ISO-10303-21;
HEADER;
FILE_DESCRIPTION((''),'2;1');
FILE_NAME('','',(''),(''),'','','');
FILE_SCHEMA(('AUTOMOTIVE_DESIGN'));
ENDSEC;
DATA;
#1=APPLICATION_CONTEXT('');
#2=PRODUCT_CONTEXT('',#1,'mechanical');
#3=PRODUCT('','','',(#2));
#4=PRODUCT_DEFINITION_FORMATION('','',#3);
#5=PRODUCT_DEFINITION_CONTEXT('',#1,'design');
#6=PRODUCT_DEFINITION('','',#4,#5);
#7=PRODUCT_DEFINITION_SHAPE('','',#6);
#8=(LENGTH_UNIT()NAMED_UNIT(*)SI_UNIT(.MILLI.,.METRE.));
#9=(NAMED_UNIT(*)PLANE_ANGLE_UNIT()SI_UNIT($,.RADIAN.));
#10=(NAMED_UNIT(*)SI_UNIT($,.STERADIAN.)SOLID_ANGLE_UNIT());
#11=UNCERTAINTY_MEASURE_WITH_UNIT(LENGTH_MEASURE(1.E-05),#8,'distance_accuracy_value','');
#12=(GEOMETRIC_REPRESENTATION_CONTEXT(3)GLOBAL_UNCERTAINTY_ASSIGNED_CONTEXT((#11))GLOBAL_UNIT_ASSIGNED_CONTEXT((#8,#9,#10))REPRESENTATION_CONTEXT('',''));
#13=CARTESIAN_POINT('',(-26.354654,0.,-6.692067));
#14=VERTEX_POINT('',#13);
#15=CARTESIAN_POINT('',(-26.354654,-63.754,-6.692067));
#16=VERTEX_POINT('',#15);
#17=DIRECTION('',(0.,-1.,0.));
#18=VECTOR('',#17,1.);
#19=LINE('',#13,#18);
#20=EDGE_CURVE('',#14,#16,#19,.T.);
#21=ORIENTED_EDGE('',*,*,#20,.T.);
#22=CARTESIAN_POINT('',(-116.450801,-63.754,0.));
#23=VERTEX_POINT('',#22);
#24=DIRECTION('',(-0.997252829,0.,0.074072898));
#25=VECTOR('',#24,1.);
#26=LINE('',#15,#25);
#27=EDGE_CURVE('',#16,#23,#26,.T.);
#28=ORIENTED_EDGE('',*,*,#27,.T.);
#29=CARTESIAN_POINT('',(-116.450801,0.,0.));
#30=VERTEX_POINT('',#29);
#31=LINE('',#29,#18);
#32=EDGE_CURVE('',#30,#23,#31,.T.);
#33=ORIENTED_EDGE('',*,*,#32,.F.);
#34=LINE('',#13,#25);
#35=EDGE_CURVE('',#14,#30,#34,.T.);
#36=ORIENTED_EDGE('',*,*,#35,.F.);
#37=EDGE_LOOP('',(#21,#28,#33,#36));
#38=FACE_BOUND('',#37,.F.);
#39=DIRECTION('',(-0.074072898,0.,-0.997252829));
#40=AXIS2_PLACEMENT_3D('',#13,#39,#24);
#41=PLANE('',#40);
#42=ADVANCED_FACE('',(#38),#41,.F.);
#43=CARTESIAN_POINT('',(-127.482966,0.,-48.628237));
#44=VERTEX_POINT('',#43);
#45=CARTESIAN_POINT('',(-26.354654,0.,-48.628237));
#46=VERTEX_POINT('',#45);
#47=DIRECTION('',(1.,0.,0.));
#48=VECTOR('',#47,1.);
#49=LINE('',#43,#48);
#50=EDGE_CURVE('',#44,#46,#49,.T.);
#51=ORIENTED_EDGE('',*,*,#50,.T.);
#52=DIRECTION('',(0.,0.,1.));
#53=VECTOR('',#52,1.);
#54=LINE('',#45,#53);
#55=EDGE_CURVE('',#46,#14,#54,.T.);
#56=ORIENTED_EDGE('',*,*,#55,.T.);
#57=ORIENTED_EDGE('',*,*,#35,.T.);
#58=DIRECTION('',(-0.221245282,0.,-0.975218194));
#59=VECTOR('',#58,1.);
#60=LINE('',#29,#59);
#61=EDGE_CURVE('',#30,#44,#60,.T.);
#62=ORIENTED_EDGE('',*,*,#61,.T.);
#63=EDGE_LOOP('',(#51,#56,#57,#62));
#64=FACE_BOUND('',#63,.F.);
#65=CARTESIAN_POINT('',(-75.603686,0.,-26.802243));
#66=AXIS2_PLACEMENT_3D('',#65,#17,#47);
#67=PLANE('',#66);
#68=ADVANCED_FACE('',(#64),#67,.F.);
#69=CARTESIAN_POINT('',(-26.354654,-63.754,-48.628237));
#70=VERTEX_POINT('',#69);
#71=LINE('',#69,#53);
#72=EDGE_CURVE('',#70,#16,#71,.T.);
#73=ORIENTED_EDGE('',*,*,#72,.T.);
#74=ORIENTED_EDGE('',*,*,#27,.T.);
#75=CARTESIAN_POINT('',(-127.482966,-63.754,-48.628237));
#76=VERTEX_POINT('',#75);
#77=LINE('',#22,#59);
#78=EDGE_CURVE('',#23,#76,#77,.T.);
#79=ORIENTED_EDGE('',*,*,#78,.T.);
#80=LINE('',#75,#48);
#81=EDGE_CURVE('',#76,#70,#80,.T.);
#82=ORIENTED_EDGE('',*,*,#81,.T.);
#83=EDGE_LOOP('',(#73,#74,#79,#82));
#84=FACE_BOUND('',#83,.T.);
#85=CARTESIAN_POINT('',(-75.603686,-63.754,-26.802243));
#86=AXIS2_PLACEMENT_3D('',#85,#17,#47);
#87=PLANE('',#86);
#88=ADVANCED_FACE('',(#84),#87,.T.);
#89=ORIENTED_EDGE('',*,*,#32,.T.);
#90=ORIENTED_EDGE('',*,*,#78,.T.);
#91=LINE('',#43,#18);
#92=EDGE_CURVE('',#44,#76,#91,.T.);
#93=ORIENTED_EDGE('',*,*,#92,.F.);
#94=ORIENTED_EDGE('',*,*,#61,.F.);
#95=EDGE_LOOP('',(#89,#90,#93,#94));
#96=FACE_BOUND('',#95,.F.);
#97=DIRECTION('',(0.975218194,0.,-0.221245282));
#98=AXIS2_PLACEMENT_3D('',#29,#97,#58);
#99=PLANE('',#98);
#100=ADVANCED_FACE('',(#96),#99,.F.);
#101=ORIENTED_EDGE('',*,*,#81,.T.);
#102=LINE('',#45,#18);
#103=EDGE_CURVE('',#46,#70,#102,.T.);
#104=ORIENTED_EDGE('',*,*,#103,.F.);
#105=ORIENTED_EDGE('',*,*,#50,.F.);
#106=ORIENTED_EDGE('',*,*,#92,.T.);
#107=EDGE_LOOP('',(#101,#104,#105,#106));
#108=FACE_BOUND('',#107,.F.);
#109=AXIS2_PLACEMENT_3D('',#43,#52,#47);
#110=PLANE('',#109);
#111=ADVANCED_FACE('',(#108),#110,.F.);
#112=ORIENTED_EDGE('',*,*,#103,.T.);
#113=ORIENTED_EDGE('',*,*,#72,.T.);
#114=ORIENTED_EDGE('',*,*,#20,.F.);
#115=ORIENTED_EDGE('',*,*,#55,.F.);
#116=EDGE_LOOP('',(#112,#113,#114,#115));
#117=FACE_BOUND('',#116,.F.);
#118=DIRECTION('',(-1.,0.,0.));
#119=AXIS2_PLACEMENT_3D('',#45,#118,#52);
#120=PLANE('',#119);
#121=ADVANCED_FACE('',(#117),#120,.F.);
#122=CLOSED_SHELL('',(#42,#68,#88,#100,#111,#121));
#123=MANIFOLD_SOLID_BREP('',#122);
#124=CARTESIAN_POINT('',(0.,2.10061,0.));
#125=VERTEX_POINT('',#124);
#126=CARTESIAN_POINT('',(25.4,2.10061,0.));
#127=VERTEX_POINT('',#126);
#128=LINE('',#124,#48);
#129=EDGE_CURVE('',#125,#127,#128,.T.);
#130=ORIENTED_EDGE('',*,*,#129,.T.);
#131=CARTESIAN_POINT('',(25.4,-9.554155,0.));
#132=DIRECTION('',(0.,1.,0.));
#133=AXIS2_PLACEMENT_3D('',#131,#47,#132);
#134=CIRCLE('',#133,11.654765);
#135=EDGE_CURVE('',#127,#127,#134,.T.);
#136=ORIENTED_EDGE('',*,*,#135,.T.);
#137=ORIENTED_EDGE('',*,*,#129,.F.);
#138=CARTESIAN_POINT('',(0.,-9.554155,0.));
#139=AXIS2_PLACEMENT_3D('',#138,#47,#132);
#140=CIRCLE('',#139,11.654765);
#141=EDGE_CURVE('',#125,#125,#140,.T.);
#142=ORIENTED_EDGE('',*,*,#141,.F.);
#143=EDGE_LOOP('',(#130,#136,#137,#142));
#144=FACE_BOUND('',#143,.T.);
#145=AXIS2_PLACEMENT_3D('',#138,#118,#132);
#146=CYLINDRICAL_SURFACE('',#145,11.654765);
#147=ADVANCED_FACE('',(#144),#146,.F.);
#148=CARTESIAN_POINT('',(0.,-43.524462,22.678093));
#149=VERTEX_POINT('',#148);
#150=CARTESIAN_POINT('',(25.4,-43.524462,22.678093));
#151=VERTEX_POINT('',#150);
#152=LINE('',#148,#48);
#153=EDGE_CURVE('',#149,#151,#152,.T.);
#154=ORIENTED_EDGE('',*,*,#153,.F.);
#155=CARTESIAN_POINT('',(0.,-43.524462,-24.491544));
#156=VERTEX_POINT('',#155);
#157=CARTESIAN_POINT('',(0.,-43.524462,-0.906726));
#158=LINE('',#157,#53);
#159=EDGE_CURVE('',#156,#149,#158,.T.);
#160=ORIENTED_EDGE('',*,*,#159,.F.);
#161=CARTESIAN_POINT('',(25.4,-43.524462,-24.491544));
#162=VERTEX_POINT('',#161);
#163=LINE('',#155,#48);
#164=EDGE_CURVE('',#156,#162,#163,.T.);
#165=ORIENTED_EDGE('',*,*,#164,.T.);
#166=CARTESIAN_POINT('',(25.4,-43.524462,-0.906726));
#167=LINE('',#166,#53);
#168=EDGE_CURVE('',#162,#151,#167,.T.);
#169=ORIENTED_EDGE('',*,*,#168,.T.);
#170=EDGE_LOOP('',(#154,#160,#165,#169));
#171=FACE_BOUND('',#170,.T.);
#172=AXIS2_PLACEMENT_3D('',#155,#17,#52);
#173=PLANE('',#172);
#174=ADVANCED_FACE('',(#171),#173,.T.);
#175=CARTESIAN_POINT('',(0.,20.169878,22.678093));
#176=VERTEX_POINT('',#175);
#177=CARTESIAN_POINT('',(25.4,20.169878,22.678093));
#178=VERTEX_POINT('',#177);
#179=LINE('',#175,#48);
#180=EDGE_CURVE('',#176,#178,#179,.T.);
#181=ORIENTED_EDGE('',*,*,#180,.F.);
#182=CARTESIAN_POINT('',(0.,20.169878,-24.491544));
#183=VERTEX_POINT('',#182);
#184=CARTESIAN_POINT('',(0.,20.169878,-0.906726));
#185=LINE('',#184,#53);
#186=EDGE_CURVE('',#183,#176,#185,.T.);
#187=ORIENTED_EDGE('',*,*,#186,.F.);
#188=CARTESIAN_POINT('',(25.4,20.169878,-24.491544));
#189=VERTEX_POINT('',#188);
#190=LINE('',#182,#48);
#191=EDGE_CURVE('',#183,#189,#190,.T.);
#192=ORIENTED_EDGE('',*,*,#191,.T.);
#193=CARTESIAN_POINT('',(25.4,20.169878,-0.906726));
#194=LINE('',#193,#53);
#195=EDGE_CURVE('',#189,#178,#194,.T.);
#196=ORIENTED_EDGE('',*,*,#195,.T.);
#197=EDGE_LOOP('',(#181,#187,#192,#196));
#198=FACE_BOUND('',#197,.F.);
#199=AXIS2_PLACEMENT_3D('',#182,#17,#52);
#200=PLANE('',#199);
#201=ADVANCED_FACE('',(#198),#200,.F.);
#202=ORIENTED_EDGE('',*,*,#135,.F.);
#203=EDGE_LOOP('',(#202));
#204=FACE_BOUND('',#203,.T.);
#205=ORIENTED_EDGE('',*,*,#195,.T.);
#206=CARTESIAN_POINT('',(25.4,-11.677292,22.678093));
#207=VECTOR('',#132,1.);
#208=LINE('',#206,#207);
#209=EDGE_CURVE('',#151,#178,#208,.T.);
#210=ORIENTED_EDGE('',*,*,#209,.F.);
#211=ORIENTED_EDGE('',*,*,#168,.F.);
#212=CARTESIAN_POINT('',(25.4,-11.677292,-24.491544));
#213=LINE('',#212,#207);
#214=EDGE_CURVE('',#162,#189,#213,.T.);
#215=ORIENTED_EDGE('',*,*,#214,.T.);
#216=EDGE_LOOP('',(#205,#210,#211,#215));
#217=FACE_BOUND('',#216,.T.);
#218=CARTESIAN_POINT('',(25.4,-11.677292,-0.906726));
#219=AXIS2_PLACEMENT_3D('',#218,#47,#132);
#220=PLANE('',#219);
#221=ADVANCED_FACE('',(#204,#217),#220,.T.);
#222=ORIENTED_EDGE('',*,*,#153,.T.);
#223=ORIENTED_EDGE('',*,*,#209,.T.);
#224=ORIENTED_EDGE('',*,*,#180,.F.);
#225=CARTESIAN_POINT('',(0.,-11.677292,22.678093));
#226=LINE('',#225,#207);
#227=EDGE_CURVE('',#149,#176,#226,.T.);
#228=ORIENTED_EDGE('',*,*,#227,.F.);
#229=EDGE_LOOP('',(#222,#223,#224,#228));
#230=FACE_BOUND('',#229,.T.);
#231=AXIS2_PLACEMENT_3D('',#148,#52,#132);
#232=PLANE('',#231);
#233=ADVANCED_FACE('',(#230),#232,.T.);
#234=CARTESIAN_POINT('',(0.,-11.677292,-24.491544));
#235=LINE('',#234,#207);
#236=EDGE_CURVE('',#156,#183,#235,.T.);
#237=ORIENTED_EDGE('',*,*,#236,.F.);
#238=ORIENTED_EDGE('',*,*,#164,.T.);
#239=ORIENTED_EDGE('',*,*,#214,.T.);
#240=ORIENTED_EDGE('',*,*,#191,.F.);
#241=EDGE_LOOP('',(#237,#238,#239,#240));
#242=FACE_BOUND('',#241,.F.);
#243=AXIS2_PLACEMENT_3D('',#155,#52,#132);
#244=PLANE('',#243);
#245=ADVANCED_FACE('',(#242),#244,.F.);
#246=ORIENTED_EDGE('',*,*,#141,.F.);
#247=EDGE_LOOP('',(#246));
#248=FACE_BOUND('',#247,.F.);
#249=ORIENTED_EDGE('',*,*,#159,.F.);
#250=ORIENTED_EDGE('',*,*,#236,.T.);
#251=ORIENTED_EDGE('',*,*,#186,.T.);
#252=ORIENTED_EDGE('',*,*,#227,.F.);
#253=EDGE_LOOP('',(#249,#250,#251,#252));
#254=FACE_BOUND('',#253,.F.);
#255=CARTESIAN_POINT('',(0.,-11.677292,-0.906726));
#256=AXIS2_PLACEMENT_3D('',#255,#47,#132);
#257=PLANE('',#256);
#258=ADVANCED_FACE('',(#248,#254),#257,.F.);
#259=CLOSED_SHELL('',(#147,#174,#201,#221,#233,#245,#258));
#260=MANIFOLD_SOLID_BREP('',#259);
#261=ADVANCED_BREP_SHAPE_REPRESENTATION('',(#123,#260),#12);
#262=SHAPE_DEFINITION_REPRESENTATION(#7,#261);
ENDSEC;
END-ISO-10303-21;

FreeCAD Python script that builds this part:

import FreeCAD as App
import Part
import Sketcher
from FreeCAD import Vector
Q = App.Units.Quantity

doc = App.newDocument("Part")
body = doc.addObject("PartDesign::Body", "Body")

# Sketch on YZ plane
sketch1 = doc.addObject("Sketcher::SketchObject", "Sketch")
body.addObject(sketch1)
sketch1.AttachmentSupport = (doc.YZ_Plane, [""])
sketch1.MapMode = "FlatFace"
sketch1.addGeometry([
    Part.LineSegment(Vector(-44, 23, 0), Vector(-44, -24, 0)),  # 0
    Part.LineSegment(Vector(-44, -24, 0), Vector(20, -24, 0)),  # 1
    Part.LineSegment(Vector(20, -24, 0), Vector(20, 23, 0)),  # 2
    Part.LineSegment(Vector(20, 23, 0), Vector(-44, 23, 0)),  # 3
    Part.Circle(Vector(-10, 0, 0), Vector(0, 0, 1), 12),  # 4
], False)
sketch1.addConstraint([
    Sketcher.Constraint("Coincident", 0, 2, 1, 1),
    Sketcher.Constraint("Coincident", 1, 2, 2, 1),
    Sketcher.Constraint("Coincident", 2, 2, 3, 1),
    Sketcher.Constraint("Coincident", 3, 2, 0, 1),
    Sketcher.Constraint("Vertical", 0),
    Sketcher.Constraint("Horizontal", 1),
    Sketcher.Constraint("Vertical", 2),
    Sketcher.Constraint("Horizontal", 3),
    Sketcher.Constraint("PointOnObject", 4, 3, -1),
    Sketcher.Constraint("Diameter", 4, 23.30953),
    Sketcher.Constraint("DistanceX", 1, 1, 1, 2, 63.694341),
    Sketcher.Constraint("DistanceY", 0, 2, 0, 1, 47.169637),
    Sketcher.Constraint("DistanceX", -1, 1, 1, 2, 20.169878),
    Sketcher.Constraint("DistanceX", 4, 3, -1, 1, 9.554155),
    Sketcher.Constraint("DistanceY", 0, 2, -1, 1, 24.491544),
])
pad1 = doc.addObject("PartDesign::Pad", "Pad")
body.addObject(pad1)
pad1.Profile = sketch1
pad1.Length = Q("1 in")
body2 = doc.addObject("PartDesign::Body", "Body001")

# Sketch on XZ plane
sketch2 = doc.addObject("Sketcher::SketchObject", "Sketch001")
body2.addObject(sketch2)
sketch2.AttachmentSupport = (doc.getObject("XZ_Plane001"), [""])
sketch2.MapMode = "FlatFace"
sketch2.addGeometry([
    Part.LineSegment(Vector(-26, -7, 0), Vector(-116, 0, 0)),
    Part.LineSegment(Vector(-116, 0, 0), Vector(-127, -49, 0)),
    Part.LineSegment(Vector(-127, -49, 0), Vector(-26, -49, 0)),
    Part.LineSegment(Vector(-26, -49, 0), Vector(-26, -7, 0)),
], False)
sketch2.addConstraint([
    Sketcher.Constraint("Coincident", 0, 2, 1, 1),
    Sketcher.Constraint("Coincident", 1, 2, 2, 1),
    Sketcher.Constraint("Coincident", 2, 2, 3, 1),
    Sketcher.Constraint("Coincident", 3, 2, 0, 1),
    Sketcher.Constraint("Horizontal", 2),
    Sketcher.Constraint("Vertical", 3),
    Sketcher.Constraint("PointOnObject", 0, 2, -1),
    Sketcher.Constraint("DistanceY", 3, 1, 3, 2, 41.93617),
    Sketcher.Constraint("DistanceX", 0, 2, -1, 1, 116.450801),
    Sketcher.Constraint("Distance", 0, 90.344338),
    Sketcher.Constraint("DistanceX", 2, 1, 2, 2, 101.128312),
    Sketcher.Constraint("Distance", 1, 49.863956),
])
pad2 = doc.addObject("PartDesign::Pad", "Pad001")
body2.addObject(pad2)
pad2.Profile = sketch2
pad2.Length = Q("2.51 in")

doc.recompute()
